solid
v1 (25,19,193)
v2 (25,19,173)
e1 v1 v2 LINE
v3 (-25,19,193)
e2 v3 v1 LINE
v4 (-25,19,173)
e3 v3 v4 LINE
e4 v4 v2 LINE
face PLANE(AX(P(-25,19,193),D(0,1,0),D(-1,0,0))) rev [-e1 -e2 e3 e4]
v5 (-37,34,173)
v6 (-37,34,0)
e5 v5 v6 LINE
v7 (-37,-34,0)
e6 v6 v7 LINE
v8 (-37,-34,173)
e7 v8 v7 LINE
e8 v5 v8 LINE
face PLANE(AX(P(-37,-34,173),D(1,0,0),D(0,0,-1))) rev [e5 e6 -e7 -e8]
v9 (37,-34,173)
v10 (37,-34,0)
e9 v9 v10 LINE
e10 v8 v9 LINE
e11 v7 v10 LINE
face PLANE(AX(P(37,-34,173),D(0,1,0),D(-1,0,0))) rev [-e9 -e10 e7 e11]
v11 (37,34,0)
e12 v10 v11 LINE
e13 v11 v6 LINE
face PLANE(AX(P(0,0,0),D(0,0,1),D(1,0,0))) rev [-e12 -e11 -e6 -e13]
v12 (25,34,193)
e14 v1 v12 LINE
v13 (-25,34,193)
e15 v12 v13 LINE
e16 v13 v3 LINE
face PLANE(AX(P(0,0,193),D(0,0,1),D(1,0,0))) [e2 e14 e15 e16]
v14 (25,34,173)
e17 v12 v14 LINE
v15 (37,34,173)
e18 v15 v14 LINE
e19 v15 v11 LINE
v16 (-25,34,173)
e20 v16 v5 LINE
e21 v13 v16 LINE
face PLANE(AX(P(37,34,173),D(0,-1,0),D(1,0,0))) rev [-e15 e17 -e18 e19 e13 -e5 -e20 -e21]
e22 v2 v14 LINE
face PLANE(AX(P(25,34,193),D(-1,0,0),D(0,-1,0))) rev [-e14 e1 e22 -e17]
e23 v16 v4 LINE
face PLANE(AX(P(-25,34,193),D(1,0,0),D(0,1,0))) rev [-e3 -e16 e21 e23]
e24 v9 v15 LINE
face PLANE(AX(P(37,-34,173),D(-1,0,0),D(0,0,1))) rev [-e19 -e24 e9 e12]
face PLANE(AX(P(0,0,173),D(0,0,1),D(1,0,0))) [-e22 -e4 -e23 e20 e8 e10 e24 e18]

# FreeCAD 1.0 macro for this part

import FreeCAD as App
import Part
import Sketcher
from FreeCAD import Vector


def add_polygon(sketch, points):
    """Adds a closed chain of lines whose ends are joined by coincident constraints."""
    first, n = sketch.GeometryCount, len(points)
    for a, b in zip(points, points[1:] + points[:1]):
        sketch.addGeometry(Part.LineSegment(App.Vector(*a, 0), App.Vector(*b, 0)), False)
    for i in range(n):
        sketch.addConstraint(Sketcher.Constraint("Coincident", first + i, 2, first + (i + 1) % n, 1))

doc = App.newDocument("Part")
params = doc.addObject("Spreadsheet::Sheet", "Params")
for row, (alias, value) in enumerate([
    ("sketch1_width", "74 mm"),
    ("sketch1_height", "68 mm"),
    ("pad1_length", "173 mm"),
    ("sketch2_width", "50 mm"),
    ("sketch2_height", "15 mm"),
    ("pad2_length", "20 mm"),
], start=1):
    params.set(f"A{row}", alias)
    params.set(f"B{row}", "=" + value)
    params.setAlias(f"B{row}", alias)

body = doc.addObject("PartDesign::Body", "Body")

# Sketch on XY plane
sketch1 = body.newObject("Sketcher::SketchObject", "Sketch")
sketch1.AttachmentSupport = (doc.getObject("XY_Plane"), [""])
sketch1.MapMode = "FlatFace"
add_polygon(sketch1, [(-37, 34), (-37, -34), (37, -34), (37, 34)])  # lines 0-3
sketch1.addConstraint([
    Sketcher.Constraint("Vertical", 0),
    Sketcher.Constraint("Horizontal", 1),
    Sketcher.Constraint("Vertical", 2),
    Sketcher.Constraint("Horizontal", 3),
    Sketcher.Constraint("Symmetric", 0, 2, 2, 2, -1, 1),
    Sketcher.Constraint("DistanceX", 1, 1, 1, 2, 74.0),
    Sketcher.Constraint("DistanceY", 0, 2, 0, 1, 68.0),
])
sketch1.setExpression("Constraints[9]", "Params.sketch1_width")
sketch1.setExpression("Constraints[10]", "Params.sketch1_height")
pad1 = body.newObject("PartDesign::Pad", "Pad")
pad1.Profile = sketch1
pad1.setExpression("Length", "Params.pad1_length")

# Sketch on XY plane
sketch2 = body.newObject("Sketcher::SketchObject", "Sketch001")
sketch2.AttachmentSupport = (doc.getObject("XY_Plane"), [""])
sketch2.MapMode = "FlatFace"
sketch2.AttachmentOffset = App.Placement(Vector(0, 0, 173), App.Rotation())
add_polygon(sketch2, [(-25, 34), (-25, 19), (25, 19), (25, 34)])  # lines 0-3
sketch2.addConstraint([
    Sketcher.Constraint("Vertical", 0),
    Sketcher.Constraint("Horizontal", 1),
    Sketcher.Constraint("Vertical", 2),
    Sketcher.Constraint("Horizontal", 3),
    Sketcher.Constraint("DistanceX", 1, 1, 1, 2, 50.0),
    Sketcher.Constraint("DistanceY", 0, 2, 0, 1, 15.0),
    Sketcher.Constraint("DistanceX", 0, 2, -1, 1, 25.0),
    Sketcher.Constraint("DistanceY", -1, 1, 0, 2, 19.0),
])
sketch2.setExpression("Constraints[8]", "Params.sketch2_width")
sketch2.setExpression("Constraints[9]", "Params.sketch2_height")
pad2 = body.newObject("PartDesign::Pad", "Pad001")
pad2.Profile = sketch2
pad2.setExpression("Length", "Params.pad2_length")

doc.recompute()
